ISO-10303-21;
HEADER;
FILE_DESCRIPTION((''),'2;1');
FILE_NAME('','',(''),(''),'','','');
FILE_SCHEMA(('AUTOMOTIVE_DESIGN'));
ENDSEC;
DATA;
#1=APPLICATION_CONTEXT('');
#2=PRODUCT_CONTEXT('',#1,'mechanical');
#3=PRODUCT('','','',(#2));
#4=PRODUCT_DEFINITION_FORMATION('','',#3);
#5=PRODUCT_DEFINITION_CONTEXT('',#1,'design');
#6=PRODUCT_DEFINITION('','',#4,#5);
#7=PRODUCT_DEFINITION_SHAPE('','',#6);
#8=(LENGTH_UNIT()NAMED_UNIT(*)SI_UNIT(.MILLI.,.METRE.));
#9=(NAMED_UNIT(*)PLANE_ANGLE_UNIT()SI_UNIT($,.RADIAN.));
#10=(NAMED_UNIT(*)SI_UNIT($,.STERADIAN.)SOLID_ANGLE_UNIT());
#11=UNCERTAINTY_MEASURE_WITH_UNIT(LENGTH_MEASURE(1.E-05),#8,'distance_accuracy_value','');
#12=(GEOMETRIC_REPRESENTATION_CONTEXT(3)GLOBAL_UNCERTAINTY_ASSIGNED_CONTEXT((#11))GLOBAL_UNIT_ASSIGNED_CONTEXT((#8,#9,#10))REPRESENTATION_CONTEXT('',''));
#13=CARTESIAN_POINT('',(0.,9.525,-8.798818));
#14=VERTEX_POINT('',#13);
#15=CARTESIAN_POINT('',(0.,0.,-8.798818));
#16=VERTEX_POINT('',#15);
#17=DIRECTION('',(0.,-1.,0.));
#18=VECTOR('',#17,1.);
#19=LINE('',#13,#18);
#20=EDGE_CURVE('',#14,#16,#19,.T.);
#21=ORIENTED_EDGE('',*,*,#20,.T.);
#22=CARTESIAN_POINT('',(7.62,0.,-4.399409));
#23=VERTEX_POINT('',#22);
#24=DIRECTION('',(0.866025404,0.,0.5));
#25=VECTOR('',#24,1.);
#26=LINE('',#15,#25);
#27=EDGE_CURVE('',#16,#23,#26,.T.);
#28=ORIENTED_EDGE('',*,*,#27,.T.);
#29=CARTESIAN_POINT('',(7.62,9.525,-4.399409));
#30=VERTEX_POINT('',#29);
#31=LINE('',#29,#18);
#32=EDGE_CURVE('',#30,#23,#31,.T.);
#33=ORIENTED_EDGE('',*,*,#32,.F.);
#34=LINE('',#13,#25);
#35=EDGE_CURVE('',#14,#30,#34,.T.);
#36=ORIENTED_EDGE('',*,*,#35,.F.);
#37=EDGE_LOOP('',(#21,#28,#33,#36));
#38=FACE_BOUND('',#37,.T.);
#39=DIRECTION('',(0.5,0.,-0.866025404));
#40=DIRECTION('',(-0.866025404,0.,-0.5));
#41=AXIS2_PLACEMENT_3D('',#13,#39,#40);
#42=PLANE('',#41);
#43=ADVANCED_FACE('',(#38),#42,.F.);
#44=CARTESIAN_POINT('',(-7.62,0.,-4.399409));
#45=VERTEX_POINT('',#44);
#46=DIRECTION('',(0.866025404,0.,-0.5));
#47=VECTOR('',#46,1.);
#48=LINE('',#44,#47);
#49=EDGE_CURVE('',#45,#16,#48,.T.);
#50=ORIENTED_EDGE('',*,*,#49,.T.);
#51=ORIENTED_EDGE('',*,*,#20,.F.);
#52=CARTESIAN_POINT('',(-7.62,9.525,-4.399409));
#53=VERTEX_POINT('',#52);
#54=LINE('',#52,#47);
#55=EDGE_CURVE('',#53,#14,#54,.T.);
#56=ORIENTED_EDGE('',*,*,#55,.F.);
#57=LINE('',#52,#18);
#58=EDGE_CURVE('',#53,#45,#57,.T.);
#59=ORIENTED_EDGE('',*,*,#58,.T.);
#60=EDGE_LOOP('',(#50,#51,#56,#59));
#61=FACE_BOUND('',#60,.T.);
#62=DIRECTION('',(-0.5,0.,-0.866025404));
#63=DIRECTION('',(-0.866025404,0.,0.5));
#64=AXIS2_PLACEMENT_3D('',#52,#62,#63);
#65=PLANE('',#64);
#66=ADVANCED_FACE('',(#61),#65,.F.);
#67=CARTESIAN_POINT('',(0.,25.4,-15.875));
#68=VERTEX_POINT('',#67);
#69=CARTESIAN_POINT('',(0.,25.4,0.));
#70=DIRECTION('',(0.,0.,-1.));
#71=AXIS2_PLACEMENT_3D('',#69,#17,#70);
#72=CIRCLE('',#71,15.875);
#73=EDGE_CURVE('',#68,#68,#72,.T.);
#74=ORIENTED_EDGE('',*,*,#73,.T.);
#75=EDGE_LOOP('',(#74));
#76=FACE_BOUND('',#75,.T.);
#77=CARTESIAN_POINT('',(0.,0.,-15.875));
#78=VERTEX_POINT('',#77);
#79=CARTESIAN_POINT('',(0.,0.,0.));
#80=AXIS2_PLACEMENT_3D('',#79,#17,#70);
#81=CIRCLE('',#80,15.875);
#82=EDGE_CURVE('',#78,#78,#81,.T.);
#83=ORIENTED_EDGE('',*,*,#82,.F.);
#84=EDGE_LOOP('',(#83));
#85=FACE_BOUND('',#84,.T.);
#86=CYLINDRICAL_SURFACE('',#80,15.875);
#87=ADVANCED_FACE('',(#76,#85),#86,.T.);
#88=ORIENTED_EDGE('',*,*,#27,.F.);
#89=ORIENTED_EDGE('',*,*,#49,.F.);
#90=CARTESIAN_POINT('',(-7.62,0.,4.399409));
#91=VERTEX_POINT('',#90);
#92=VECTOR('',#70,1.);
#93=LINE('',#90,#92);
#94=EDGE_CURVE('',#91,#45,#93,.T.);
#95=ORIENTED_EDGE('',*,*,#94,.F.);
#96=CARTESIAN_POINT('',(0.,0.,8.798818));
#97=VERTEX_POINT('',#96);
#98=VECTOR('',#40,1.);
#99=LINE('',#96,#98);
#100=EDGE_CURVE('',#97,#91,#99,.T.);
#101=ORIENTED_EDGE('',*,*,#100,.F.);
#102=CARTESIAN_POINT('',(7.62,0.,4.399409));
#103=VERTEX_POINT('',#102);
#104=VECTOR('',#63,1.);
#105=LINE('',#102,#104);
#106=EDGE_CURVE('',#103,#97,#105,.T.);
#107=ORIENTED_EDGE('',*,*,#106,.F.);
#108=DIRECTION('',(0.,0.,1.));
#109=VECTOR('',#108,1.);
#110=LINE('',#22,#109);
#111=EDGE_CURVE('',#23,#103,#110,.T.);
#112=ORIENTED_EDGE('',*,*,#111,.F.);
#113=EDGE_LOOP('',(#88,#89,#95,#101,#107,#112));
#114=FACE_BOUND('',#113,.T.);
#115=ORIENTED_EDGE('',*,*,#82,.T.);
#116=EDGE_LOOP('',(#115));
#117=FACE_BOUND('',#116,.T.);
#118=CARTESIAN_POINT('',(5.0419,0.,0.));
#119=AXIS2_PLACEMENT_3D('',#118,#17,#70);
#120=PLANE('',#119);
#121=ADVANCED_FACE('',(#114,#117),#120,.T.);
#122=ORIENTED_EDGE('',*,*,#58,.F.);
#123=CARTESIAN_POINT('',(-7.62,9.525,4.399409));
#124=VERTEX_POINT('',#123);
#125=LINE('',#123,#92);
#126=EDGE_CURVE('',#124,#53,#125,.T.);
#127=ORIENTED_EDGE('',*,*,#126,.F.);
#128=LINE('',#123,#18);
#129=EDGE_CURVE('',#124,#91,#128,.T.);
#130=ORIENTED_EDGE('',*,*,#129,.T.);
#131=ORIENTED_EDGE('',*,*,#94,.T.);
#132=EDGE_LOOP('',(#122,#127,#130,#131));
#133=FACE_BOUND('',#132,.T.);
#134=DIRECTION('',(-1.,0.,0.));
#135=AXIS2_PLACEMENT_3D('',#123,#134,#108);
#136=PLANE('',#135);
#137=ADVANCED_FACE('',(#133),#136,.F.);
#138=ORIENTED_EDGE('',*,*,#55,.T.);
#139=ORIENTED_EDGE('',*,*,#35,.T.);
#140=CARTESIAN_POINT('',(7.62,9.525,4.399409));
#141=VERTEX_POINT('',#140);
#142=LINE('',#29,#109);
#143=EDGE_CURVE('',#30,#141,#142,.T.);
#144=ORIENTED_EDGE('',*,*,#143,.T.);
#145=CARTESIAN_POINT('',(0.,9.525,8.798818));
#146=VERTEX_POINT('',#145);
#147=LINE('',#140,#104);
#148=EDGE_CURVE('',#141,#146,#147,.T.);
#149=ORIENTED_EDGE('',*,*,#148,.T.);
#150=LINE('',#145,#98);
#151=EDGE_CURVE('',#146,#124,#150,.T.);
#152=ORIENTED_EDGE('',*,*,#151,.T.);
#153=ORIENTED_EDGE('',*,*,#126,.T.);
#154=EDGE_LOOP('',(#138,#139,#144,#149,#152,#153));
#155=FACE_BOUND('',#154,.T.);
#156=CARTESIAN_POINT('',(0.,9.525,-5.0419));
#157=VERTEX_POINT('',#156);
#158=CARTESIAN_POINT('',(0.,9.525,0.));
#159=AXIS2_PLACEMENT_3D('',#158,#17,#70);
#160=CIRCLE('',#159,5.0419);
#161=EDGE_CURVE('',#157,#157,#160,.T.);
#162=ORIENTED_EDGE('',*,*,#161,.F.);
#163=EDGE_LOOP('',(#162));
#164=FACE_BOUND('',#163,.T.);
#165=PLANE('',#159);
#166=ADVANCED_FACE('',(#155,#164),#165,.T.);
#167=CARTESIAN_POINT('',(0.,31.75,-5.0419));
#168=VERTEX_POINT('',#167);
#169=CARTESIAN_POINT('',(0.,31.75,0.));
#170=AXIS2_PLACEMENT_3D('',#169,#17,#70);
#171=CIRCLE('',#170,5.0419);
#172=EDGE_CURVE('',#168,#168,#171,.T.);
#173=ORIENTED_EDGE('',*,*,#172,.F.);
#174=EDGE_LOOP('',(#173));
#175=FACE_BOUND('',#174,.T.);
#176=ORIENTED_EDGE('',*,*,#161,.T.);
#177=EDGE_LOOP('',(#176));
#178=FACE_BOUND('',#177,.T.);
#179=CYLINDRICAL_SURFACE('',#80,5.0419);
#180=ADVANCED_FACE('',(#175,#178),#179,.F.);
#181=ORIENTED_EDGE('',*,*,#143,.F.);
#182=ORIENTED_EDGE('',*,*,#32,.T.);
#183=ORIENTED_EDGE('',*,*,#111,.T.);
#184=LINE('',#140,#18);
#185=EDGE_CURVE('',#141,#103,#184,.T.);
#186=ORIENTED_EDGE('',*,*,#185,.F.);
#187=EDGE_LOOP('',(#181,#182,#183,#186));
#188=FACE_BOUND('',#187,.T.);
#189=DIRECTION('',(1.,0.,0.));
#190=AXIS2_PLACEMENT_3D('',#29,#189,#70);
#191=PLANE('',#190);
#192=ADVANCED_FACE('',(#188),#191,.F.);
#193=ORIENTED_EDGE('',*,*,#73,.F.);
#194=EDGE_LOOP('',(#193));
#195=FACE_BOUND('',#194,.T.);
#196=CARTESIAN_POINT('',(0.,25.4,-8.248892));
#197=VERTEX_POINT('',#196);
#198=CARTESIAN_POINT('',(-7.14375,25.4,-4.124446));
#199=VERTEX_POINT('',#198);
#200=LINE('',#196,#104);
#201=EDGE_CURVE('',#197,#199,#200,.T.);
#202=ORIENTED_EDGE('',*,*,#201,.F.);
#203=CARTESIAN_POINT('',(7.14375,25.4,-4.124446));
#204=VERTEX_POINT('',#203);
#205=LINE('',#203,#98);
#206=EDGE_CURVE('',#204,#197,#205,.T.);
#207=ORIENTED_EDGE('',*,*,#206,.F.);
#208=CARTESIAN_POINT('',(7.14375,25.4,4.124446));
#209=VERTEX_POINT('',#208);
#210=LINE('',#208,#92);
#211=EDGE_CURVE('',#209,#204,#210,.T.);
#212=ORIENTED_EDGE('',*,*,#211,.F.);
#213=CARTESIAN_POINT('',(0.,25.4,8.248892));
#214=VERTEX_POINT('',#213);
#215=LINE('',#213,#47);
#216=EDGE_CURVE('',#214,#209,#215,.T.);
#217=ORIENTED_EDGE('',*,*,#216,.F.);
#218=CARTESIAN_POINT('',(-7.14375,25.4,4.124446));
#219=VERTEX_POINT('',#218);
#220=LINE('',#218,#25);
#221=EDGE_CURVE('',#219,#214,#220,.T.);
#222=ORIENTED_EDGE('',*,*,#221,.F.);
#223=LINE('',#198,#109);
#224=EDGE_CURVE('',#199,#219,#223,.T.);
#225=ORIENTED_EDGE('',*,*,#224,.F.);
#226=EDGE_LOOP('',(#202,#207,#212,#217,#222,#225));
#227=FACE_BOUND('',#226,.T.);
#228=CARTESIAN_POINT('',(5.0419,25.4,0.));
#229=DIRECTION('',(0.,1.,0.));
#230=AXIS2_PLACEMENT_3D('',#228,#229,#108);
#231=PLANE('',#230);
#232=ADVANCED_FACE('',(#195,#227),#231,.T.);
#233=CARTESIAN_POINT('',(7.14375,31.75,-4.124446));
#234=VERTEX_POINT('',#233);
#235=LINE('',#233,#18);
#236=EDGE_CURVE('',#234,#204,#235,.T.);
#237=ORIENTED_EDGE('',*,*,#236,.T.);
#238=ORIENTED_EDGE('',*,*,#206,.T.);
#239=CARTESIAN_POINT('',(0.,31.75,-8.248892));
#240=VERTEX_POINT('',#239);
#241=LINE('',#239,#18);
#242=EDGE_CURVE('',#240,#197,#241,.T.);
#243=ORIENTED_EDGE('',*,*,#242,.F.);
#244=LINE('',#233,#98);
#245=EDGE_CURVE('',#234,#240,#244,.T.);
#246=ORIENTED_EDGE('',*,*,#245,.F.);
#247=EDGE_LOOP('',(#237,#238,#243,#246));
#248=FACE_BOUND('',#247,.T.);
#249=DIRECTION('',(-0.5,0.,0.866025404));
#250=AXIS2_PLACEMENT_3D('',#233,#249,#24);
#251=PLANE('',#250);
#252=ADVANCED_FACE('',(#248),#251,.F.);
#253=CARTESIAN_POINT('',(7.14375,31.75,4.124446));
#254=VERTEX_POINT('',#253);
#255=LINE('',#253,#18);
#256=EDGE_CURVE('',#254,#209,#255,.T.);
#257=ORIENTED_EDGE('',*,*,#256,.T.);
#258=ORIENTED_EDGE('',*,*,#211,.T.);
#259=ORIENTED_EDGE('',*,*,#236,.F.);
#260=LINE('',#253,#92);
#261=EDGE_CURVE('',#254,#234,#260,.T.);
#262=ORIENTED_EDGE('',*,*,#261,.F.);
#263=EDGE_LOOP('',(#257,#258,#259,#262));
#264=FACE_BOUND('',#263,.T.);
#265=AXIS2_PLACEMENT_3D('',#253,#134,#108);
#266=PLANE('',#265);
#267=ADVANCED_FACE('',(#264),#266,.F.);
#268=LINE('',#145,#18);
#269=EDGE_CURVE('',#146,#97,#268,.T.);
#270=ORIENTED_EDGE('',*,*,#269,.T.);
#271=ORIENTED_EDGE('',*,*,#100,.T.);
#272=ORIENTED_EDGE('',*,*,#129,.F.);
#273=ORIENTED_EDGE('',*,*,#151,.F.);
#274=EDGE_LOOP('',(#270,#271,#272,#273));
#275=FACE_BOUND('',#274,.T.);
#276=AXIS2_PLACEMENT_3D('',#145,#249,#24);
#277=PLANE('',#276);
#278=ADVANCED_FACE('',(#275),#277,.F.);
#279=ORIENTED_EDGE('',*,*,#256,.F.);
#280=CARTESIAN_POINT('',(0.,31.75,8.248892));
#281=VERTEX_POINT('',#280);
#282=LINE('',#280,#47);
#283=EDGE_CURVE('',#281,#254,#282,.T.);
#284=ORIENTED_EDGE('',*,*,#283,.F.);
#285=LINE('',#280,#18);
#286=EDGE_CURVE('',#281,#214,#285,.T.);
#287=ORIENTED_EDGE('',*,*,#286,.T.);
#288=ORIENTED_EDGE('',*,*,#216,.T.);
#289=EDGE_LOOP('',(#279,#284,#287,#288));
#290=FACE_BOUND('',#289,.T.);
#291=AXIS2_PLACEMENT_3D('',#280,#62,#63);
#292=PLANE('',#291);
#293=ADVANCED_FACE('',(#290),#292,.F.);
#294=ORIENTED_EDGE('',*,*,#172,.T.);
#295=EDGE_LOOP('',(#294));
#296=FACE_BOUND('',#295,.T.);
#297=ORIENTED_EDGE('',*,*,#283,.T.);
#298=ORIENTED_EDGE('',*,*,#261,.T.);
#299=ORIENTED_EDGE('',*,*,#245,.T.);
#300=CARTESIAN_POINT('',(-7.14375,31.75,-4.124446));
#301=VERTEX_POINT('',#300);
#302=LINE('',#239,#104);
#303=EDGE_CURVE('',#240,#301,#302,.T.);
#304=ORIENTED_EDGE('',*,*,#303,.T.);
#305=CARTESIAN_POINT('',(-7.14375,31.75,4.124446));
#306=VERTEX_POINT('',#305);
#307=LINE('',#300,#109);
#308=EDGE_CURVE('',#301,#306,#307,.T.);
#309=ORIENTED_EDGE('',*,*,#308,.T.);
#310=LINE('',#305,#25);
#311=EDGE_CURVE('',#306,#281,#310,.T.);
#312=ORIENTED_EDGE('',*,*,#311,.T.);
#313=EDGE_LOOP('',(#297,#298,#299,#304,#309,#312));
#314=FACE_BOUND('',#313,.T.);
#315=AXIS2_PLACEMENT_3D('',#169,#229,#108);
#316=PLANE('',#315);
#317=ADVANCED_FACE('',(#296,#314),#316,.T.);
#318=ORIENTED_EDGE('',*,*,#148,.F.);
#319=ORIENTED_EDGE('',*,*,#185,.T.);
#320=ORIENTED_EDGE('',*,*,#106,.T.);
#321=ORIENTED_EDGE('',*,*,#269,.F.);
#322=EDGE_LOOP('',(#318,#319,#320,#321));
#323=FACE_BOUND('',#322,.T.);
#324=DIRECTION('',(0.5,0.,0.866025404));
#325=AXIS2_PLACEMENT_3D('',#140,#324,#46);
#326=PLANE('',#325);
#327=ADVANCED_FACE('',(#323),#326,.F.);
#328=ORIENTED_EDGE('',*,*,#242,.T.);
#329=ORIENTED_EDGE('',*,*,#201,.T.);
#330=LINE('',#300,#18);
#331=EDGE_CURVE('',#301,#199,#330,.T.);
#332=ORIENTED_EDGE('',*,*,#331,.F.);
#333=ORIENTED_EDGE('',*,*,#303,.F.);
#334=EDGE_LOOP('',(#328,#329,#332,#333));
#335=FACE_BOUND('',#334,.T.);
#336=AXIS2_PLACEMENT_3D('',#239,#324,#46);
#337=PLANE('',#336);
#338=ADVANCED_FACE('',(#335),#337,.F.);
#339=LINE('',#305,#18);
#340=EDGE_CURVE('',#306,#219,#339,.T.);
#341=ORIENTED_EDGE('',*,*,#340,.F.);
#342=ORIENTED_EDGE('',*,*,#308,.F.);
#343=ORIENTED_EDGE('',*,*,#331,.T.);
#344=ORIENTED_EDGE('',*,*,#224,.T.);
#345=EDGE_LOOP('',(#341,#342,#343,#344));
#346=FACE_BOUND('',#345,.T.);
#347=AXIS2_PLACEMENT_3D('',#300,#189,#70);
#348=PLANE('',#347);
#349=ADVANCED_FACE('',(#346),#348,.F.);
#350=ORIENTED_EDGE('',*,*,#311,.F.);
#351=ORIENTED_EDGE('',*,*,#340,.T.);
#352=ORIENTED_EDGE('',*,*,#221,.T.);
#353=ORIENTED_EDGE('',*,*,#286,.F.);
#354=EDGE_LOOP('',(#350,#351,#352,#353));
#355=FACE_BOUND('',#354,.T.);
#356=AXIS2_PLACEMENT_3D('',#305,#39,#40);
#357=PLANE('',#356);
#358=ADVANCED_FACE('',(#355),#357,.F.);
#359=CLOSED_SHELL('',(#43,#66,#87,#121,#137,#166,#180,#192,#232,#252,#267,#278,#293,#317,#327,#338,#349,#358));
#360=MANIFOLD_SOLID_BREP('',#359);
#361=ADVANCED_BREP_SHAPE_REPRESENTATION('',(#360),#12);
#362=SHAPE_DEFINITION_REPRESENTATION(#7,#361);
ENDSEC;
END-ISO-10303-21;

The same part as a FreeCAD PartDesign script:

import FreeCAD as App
import Part
import Sketcher
from FreeCAD import Vector
Q = App.Units.Quantity


def add_polygon(sketch, points):
    """Adds a closed chain of lines whose ends are joined by coincident constraints."""
    first, n = sketch.GeometryCount, len(points)
    for a, b in zip(points, points[1:] + points[:1]):
        sketch.addGeometry(Part.LineSegment(App.Vector(*a, 0), App.Vector(*b, 0)), False)
    for i in range(n):
        sketch.addConstraint(Sketcher.Constraint("Coincident", first + i, 2, first + (i + 1) % n, 1))

doc = App.newDocument("Part")
body = doc.addObject("PartDesign::Body", "Body")

# Sketch on XY plane
sketch1 = doc.addObject("Sketcher::SketchObject", "Sketch")
body.addObject(sketch1)
sketch1.AttachmentSupport = (doc.XY_Plane, [""])
sketch1.MapMode = "FlatFace"
add_polygon(sketch1, [(5, 25), (5, 0), (16, 0), (16, 25)])  # lines 0-3
sketch1.addConstraint(Sketcher.Constraint("Vertical", 0))
sketch1.addConstraint(Sketcher.Constraint("Horizontal", 1))
sketch1.addConstraint(Sketcher.Constraint("Vertical", 2))
sketch1.addConstraint(Sketcher.Constraint("Horizontal", 3))
sketch1.addConstraint(Sketcher.Constraint("PointOnObject", 0, 2, -1))
sketch1.addConstraint(Sketcher.Constraint("DistanceY", 0, 2, 0, 1, Q("1 in")))
sketch1.addConstraint(Sketcher.Constraint("DistanceX", 1, 1, 1, 2, Q("0.4265 in")))
sketch1.addConstraint(Sketcher.Constraint("DistanceX", -1, 1, 1, 2, Q("0.625 in")))
revolution = doc.addObject("PartDesign::Revolution", "Revolution")
body.addObject(revolution)
revolution.Profile = sketch1
revolution.ReferenceAxis = (sketch1, ["V_Axis"])
revolution.Angle = 360

# Sketch on XZ plane
sketch2 = doc.addObject("Sketcher::SketchObject", "Sketch001")
body.addObject(sketch2)
sketch2.AttachmentSupport = (doc.XZ_Plane, [""])
sketch2.MapMode = "FlatFace"
add_polygon(sketch2, [(8, -4), (8, 4), (0, 9), (-8, 4), (-8, -4), (0, -9)])  # lines 0-5
sketch2.addConstraint(Sketcher.Constraint("Vertical", 0))
sketch2.addConstraint(Sketcher.Constraint("Vertical", 3))
sketch2.addConstraint(Sketcher.Constraint("Symmetric", 0, 2, 3, 2, -1, 1))
sketch2.addConstraint(Sketcher.Constraint("Symmetric", 1, 2, 4, 2, -1, 1))
sketch2.addConstraint(Sketcher.Constraint("PointOnObject", 1, 2, -2))
sketch2.addConstraint(Sketcher.Constraint("Parallel", 2, 5))
sketch2.addConstraint(Sketcher.Constraint("Horizontal", 0, 2, 2, 2))
sketch2.addConstraint(Sketcher.Constraint("Angle", 1, Q("150 deg")))
sketch2.addConstraint(Sketcher.Constraint("DistanceX", -1, 1, 0, 2, Q("0.3 in")))
sketch2.addConstraint(Sketcher.Constraint("DistanceY", 0, 1, 0, 2, Q("8.798818 mm")))
pocket1 = doc.addObject("PartDesign::Pocket", "Pocket")
body.addObject(pocket1)
pocket1.Profile = sketch2
pocket1.Length = Q("0.375 in")

# Sketch on XZ plane
sketch3 = doc.addObject("Sketcher::SketchObject", "Sketch002")
body.addObject(sketch3)
sketch3.AttachmentSupport = (doc.XZ_Plane, [""])
sketch3.MapMode = "FlatFace"
sketch3.AttachmentOffset = App.Placement(Vector(0, 0, -1 * 25.4), App.Rotation())
add_polygon(sketch3, [(0, -8), (-7, -4), (-7, 4), (0, 8), (7, 4), (7, -4)])  # lines 0-5
sketch3.addConstraint(Sketcher.Constraint("Vertical", 1))
sketch3.addConstraint(Sketcher.Constraint("Vertical", 4))
sketch3.addConstraint(Sketcher.Constraint("Symmetric", 0, 2, 3, 2, -1, 1))
sketch3.addConstraint(Sketcher.Constraint("Symmetric", 2, 2, 5, 2, -1, 1))
sketch3.addConstraint(Sketcher.Constraint("PointOnObject", 2, 2, -2))
sketch3.addConstraint(Sketcher.Constraint("Parallel", 2, 5))
sketch3.addConstraint(Sketcher.Constraint("Horizontal", 1, 2, 3, 2))
sketch3.addConstraint(Sketcher.Constraint("Angle", 0, Q("150 deg")))
sketch3.addConstraint(Sketcher.Constraint("DistanceX", 0, 2, -1, 1, Q("0.28125 in")))
sketch3.addConstraint(Sketcher.Constraint("DistanceY", 1, 1, 1, 2, Q("8.248892 mm")))
pad1 = doc.addObject("PartDesign::Pad", "Pad")
body.addObject(pad1)
pad1.Profile = sketch3
pad1.Length = Q("0.25 in")
pad1.Reversed = True

# Sketch on XZ plane
sketch4 = doc.addObject("Sketcher::SketchObject", "Sketch003")
body.addObject(sketch4)
sketch4.AttachmentSupport = (doc.XZ_Plane, [""])
sketch4.MapMode = "FlatFace"
sketch4.AttachmentOffset = App.Placement(Vector(0, 0, -1 * 25.4), App.Rotation())
sketch4.addGeometry(Part.Circle(Vector(0, 0, 0), Vector(0, 0, 1), 5), False)
sketch4.addConstraint(Sketcher.Constraint("Coincident", 0, 3, -1, 1))
sketch4.addConstraint(Sketcher.Constraint("Diameter", 0, Q("0.397 in")))
pocket2 = doc.addObject("PartDesign::Pocket", "Pocket001")
body.addObject(pocket2)
pocket2.Profile = sketch4
pocket2.Type = "ThroughAll"

doc.recompute()
